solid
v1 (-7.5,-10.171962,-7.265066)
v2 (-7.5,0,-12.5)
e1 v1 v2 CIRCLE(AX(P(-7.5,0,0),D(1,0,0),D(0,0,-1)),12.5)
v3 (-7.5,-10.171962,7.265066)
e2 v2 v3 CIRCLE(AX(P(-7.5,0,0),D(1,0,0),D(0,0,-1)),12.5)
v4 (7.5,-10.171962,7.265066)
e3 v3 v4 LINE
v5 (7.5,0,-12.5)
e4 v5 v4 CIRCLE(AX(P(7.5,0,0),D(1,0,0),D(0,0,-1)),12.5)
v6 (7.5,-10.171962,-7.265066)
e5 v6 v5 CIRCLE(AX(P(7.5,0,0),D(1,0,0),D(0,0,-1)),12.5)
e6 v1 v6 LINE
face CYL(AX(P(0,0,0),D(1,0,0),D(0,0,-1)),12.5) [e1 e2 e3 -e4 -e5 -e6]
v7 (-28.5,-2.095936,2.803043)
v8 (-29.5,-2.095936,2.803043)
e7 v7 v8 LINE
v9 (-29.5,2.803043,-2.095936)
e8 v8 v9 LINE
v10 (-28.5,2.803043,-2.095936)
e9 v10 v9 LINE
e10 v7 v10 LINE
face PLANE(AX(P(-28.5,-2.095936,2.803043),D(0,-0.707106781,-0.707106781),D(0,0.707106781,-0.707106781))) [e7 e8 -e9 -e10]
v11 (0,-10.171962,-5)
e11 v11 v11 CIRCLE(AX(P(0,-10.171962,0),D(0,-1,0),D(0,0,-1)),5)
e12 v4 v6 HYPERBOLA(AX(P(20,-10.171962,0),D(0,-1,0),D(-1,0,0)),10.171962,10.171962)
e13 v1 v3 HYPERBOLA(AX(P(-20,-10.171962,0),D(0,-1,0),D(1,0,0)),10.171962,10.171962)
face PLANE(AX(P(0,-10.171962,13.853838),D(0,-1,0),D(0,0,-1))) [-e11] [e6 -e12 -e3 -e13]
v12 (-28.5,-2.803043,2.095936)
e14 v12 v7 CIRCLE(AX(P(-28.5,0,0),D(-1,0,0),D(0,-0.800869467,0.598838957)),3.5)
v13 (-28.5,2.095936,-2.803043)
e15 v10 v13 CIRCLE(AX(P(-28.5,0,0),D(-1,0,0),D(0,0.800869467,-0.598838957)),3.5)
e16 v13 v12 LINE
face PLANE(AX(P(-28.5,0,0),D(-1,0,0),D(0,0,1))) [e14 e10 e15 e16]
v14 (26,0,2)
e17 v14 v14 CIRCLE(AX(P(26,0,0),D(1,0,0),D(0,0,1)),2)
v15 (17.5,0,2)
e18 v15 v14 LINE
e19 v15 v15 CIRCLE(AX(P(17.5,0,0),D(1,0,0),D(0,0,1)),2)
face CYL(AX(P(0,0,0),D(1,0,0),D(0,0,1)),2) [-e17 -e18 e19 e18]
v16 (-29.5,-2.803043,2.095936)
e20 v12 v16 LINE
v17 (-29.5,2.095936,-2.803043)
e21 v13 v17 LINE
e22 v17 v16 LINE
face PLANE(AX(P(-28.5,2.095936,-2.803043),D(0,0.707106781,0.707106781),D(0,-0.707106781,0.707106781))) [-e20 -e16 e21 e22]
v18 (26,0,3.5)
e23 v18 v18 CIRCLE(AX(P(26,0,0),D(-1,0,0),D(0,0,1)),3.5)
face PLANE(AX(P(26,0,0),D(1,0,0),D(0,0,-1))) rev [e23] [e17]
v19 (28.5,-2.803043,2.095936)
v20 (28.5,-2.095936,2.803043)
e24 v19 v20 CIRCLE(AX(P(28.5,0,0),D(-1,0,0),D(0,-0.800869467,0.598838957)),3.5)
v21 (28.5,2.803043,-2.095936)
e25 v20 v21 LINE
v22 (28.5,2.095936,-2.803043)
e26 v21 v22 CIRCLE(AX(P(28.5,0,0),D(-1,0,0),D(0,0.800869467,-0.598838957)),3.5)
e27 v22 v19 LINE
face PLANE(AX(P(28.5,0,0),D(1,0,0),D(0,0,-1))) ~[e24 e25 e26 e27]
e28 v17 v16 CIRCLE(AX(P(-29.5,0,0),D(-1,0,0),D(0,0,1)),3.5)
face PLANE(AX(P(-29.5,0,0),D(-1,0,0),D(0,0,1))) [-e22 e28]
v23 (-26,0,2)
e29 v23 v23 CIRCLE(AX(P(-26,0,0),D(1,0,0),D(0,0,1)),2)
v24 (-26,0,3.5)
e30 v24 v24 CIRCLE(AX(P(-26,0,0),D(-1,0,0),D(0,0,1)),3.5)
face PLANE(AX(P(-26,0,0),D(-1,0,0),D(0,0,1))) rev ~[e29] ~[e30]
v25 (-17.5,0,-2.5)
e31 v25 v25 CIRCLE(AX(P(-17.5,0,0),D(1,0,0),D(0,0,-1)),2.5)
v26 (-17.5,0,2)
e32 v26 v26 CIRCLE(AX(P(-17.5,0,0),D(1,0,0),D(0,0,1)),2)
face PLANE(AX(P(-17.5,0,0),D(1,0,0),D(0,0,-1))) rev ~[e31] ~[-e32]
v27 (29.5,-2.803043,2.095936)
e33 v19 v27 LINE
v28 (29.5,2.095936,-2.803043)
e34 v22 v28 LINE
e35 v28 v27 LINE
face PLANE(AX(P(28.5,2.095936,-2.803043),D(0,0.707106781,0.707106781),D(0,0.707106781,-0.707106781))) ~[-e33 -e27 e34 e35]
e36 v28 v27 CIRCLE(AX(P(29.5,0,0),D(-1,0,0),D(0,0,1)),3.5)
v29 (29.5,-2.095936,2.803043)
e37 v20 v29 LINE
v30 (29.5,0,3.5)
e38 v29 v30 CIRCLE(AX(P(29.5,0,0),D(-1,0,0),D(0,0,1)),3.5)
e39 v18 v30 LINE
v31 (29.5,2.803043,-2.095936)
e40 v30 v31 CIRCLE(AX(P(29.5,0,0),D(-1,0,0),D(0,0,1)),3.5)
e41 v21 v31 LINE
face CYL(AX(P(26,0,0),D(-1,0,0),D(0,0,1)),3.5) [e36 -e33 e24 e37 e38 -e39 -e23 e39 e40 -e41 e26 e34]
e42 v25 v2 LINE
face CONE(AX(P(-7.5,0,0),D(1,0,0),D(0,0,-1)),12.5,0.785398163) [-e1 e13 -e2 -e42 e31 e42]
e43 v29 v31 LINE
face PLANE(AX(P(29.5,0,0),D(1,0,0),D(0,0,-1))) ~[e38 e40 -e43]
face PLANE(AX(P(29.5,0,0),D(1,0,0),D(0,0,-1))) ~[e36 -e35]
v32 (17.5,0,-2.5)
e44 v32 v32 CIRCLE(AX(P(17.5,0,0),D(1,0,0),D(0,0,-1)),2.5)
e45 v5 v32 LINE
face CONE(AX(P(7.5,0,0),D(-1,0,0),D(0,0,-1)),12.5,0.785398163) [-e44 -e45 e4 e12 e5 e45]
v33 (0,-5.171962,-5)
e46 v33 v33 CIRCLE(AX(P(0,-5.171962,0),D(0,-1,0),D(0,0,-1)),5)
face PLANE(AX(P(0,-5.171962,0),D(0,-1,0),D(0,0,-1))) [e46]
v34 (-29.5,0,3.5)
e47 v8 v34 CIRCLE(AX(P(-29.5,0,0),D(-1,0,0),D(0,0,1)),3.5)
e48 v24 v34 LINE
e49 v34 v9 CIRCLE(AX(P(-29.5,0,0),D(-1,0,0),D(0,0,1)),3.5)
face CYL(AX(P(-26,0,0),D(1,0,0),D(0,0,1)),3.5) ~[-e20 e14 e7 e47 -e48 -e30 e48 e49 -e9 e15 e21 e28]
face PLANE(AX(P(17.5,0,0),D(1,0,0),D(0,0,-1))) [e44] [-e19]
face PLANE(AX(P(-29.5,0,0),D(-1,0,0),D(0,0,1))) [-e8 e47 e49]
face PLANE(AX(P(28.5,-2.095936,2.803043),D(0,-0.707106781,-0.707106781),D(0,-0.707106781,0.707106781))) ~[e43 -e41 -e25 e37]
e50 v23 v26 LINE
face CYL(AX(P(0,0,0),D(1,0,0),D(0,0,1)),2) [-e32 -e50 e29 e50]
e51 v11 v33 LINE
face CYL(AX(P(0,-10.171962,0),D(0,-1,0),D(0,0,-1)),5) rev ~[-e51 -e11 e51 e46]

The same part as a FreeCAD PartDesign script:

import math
import FreeCAD as App
import Part
import Sketcher
from FreeCAD import Vector
Q = App.Units.Quantity


def edges_at(feature, points):
    """Names of the edges that pass closest to the given points."""
    edges = feature.Shape.Edges
    near = lambda p: min(range(len(edges)), key=lambda i: edges[i].distToShape(Part.Vertex(*p))[0])
    return sorted({f"Edge{near(p) + 1}" for p in points})


def add_polygon(sketch, points):
    """Adds a closed chain of lines whose ends are joined by coincident constraints."""
    first, n = sketch.GeometryCount, len(points)
    for a, b in zip(points, points[1:] + points[:1]):
        sketch.addGeometry(Part.LineSegment(App.Vector(*a, 0), App.Vector(*b, 0)), False)
    for i in range(n):
        sketch.addConstraint(Sketcher.Constraint("Coincident", first + i, 2, first + (i + 1) % n, 1))

doc = App.newDocument("Part")
body = doc.addObject("PartDesign::Body", "Body")

# Sketch on YZ plane
sketch1 = body.newObject("Sketcher::SketchObject", "Sketch")
sketch1.AttachmentSupport = (doc.getObject("YZ_Plane"), [""])
sketch1.MapMode = "FlatFace"
sketch1.addGeometry(Part.Circle(Vector(0, 0, 0), Vector(0, 0, 1), 12.5), False)
sketch1.addConstraint(Sketcher.Constraint("Coincident", 0, 3, -1, 1))
sketch1.addConstraint(Sketcher.Constraint("Diameter", 0, 25.0))
pad1 = body.newObject("PartDesign::Pad", "Pad")
pad1.Profile = sketch1
pad1.Length = 35
pad1.Midplane = True

# Sketch on YZ plane
sketch2 = body.newObject("Sketcher::SketchObject", "Sketch001")
sketch2.AttachmentSupport = (doc.getObject("YZ_Plane"), [""])
sketch2.MapMode = "FlatFace"
sketch2.addGeometry(Part.Circle(Vector(0, 0, 0), Vector(0, 0, 1), 2), False)
sketch2.addConstraint(Sketcher.Constraint("Coincident", 0, 3, -1, 1))
sketch2.addConstraint(Sketcher.Constraint("Diameter", 0, 4.0))
pad2 = body.newObject("PartDesign::Pad", "Pad001")
pad2.Profile = sketch2
pad2.Length = 52
pad2.Midplane = True
doc.recompute()

chamfer = body.newObject("PartDesign::Chamfer", "Chamfer")
chamfer.Base = (pad2, edges_at(pad2, [(-17.5, 0, 12.5), (17.5, 0, 12.5)]))
chamfer.Size = 10

# Sketch on YZ plane
sketch3 = body.newObject("Sketcher::SketchObject", "Sketch002")
sketch3.AttachmentSupport = (doc.getObject("YZ_Plane"), [""])
sketch3.MapMode = "FlatFace"
add_polygon(sketch3, [(-10.171962, 13.853838), (-17.369301, 13.853838), (-17.369301, -15.143534), (-10.171962, -15.143534)])  # lines 0-3
sketch3.addConstraint(Sketcher.Constraint("Horizontal", 0))
sketch3.addConstraint(Sketcher.Constraint("Vertical", 1))
sketch3.addConstraint(Sketcher.Constraint("Horizontal", 2))
sketch3.addConstraint(Sketcher.Constraint("Vertical", 3))
sketch3.addConstraint(Sketcher.Constraint("DistanceX", 0, 2, 0, 1, 7.197339))
sketch3.addConstraint(Sketcher.Constraint("DistanceX", 0, 2, -1, 1, 17.369301))
sketch3.addConstraint(Sketcher.Constraint("DistanceY", 1, 2, 1, 1, 28.997372))
sketch3.addConstraint(Sketcher.Constraint("DistanceY", -1, 1, 0, 2, 13.853838))
pocket1 = body.newObject("PartDesign::Pocket", "Pocket")
pocket1.Profile = sketch3
pocket1.Length = 40
pocket1.Midplane = True

# Sketch on XZ plane
sketch4 = body.newObject("Sketcher::SketchObject", "Sketch003")
sketch4.AttachmentSupport = (doc.getObject("XZ_Plane"), [""])
sketch4.MapMode = "FlatFace"
sketch4.AttachmentOffset = App.Placement(Vector(0, 0, 10.171962), App.Rotation())
sketch4.addGeometry(Part.Circle(Vector(0, 0, 0), Vector(0, 0, 1), 5), False)
sketch4.addConstraint(Sketcher.Constraint("Coincident", 0, 3, -1, 1))
sketch4.addConstraint(Sketcher.Constraint("Diameter", 0, 10.0))
pocket2 = body.newObject("PartDesign::Pocket", "Pocket001")
pocket2.Profile = sketch4
pocket2.Length = 5

# Sketch on YZ plane
sketch5 = body.newObject("Sketcher::SketchObject", "Sketch004")
sketch5.AttachmentSupport = (doc.getObject("YZ_Plane"), [""])
sketch5.MapMode = "FlatFace"
sketch5.AttachmentOffset = App.Placement(Vector(0, 0, -26), App.Rotation())
sketch5.addGeometry(Part.Circle(Vector(0, 0, 0), Vector(0, 0, 1), 3.5), False)
sketch5.addConstraint(Sketcher.Constraint("Coincident", 0, 3, -1, 1))
sketch5.addConstraint(Sketcher.Constraint("Diameter", 0, 7.0))
pad3 = body.newObject("PartDesign::Pad", "Pad002")
pad3.Profile = sketch5
pad3.Length = 3.5
pad3.Reversed = True

# Sketch on YZ plane
sketch6 = body.newObject("Sketcher::SketchObject", "Sketch005")
sketch6.AttachmentSupport = (doc.getObject("YZ_Plane"), [""])
sketch6.MapMode = "FlatFace"
sketch6.AttachmentOffset = App.Placement(Vector(0, 0, -28.5), App.Rotation())
sketch6.addGeometry(Part.LineSegment(Vector(-2.095936, 2.803043, 0), Vector(2.803043, -2.095936, 0)), False)
sketch6.addGeometry(Part.ArcOfCircle(Part.Circle(Vector(0, 0, 0), Vector(0, 0, 1), 3.5), math.radians(-53.213211), math.radians(-36.786789)), False)
sketch6.addGeometry(Part.LineSegment(Vector(2.095936, -2.803043, 0), Vector(-2.803043, 2.095936, 0)), False)
sketch6.addGeometry(Part.ArcOfCircle(Part.Circle(Vector(0, 0, 0), Vector(0, 0, 1), 3.5), math.radians(126.786789), math.radians(143.213211)), False)
sketch6.addConstraint(Sketcher.Constraint("Coincident", 0, 2, 1, 2))
sketch6.addConstraint(Sketcher.Constraint("Coincident", 1, 1, 2, 1))
sketch6.addConstraint(Sketcher.Constraint("Coincident", 2, 2, 3, 2))
sketch6.addConstraint(Sketcher.Constraint("Coincident", 3, 1, 0, 1))
sketch6.addConstraint(Sketcher.Constraint("Coincident", 1, 3, -1, 1))
sketch6.addConstraint(Sketcher.Constraint("Coincident", 3, 3, -1, 1))
sketch6.addConstraint(Sketcher.Constraint("Equal", 1, 3))
sketch6.addConstraint(Sketcher.Constraint("Parallel", 0, 2))
sketch6.addConstraint(Sketcher.Constraint("Equal", 0, 2))
sketch6.addConstraint(Sketcher.Constraint("Radius", 1, 3.5))
sketch6.addConstraint(Sketcher.Constraint("Angle", 0, Q("-45 deg")))
sketch6.addConstraint(Sketcher.Constraint("DistanceX", 2, 2, 1, 1, 4.898979))
pocket3 = body.newObject("PartDesign::Pocket", "Pocket002")
pocket3.Profile = sketch6
pocket3.Length = 1
doc.recompute()

mirrored = body.newObject("PartDesign::Mirrored", "Mirrored")
mirrored.Originals = [pad3, pocket3]
mirrored.MirrorPlane = (doc.getObject("YZ_Plane"), [""])
body.Tip = mirrored

doc.recompute()
